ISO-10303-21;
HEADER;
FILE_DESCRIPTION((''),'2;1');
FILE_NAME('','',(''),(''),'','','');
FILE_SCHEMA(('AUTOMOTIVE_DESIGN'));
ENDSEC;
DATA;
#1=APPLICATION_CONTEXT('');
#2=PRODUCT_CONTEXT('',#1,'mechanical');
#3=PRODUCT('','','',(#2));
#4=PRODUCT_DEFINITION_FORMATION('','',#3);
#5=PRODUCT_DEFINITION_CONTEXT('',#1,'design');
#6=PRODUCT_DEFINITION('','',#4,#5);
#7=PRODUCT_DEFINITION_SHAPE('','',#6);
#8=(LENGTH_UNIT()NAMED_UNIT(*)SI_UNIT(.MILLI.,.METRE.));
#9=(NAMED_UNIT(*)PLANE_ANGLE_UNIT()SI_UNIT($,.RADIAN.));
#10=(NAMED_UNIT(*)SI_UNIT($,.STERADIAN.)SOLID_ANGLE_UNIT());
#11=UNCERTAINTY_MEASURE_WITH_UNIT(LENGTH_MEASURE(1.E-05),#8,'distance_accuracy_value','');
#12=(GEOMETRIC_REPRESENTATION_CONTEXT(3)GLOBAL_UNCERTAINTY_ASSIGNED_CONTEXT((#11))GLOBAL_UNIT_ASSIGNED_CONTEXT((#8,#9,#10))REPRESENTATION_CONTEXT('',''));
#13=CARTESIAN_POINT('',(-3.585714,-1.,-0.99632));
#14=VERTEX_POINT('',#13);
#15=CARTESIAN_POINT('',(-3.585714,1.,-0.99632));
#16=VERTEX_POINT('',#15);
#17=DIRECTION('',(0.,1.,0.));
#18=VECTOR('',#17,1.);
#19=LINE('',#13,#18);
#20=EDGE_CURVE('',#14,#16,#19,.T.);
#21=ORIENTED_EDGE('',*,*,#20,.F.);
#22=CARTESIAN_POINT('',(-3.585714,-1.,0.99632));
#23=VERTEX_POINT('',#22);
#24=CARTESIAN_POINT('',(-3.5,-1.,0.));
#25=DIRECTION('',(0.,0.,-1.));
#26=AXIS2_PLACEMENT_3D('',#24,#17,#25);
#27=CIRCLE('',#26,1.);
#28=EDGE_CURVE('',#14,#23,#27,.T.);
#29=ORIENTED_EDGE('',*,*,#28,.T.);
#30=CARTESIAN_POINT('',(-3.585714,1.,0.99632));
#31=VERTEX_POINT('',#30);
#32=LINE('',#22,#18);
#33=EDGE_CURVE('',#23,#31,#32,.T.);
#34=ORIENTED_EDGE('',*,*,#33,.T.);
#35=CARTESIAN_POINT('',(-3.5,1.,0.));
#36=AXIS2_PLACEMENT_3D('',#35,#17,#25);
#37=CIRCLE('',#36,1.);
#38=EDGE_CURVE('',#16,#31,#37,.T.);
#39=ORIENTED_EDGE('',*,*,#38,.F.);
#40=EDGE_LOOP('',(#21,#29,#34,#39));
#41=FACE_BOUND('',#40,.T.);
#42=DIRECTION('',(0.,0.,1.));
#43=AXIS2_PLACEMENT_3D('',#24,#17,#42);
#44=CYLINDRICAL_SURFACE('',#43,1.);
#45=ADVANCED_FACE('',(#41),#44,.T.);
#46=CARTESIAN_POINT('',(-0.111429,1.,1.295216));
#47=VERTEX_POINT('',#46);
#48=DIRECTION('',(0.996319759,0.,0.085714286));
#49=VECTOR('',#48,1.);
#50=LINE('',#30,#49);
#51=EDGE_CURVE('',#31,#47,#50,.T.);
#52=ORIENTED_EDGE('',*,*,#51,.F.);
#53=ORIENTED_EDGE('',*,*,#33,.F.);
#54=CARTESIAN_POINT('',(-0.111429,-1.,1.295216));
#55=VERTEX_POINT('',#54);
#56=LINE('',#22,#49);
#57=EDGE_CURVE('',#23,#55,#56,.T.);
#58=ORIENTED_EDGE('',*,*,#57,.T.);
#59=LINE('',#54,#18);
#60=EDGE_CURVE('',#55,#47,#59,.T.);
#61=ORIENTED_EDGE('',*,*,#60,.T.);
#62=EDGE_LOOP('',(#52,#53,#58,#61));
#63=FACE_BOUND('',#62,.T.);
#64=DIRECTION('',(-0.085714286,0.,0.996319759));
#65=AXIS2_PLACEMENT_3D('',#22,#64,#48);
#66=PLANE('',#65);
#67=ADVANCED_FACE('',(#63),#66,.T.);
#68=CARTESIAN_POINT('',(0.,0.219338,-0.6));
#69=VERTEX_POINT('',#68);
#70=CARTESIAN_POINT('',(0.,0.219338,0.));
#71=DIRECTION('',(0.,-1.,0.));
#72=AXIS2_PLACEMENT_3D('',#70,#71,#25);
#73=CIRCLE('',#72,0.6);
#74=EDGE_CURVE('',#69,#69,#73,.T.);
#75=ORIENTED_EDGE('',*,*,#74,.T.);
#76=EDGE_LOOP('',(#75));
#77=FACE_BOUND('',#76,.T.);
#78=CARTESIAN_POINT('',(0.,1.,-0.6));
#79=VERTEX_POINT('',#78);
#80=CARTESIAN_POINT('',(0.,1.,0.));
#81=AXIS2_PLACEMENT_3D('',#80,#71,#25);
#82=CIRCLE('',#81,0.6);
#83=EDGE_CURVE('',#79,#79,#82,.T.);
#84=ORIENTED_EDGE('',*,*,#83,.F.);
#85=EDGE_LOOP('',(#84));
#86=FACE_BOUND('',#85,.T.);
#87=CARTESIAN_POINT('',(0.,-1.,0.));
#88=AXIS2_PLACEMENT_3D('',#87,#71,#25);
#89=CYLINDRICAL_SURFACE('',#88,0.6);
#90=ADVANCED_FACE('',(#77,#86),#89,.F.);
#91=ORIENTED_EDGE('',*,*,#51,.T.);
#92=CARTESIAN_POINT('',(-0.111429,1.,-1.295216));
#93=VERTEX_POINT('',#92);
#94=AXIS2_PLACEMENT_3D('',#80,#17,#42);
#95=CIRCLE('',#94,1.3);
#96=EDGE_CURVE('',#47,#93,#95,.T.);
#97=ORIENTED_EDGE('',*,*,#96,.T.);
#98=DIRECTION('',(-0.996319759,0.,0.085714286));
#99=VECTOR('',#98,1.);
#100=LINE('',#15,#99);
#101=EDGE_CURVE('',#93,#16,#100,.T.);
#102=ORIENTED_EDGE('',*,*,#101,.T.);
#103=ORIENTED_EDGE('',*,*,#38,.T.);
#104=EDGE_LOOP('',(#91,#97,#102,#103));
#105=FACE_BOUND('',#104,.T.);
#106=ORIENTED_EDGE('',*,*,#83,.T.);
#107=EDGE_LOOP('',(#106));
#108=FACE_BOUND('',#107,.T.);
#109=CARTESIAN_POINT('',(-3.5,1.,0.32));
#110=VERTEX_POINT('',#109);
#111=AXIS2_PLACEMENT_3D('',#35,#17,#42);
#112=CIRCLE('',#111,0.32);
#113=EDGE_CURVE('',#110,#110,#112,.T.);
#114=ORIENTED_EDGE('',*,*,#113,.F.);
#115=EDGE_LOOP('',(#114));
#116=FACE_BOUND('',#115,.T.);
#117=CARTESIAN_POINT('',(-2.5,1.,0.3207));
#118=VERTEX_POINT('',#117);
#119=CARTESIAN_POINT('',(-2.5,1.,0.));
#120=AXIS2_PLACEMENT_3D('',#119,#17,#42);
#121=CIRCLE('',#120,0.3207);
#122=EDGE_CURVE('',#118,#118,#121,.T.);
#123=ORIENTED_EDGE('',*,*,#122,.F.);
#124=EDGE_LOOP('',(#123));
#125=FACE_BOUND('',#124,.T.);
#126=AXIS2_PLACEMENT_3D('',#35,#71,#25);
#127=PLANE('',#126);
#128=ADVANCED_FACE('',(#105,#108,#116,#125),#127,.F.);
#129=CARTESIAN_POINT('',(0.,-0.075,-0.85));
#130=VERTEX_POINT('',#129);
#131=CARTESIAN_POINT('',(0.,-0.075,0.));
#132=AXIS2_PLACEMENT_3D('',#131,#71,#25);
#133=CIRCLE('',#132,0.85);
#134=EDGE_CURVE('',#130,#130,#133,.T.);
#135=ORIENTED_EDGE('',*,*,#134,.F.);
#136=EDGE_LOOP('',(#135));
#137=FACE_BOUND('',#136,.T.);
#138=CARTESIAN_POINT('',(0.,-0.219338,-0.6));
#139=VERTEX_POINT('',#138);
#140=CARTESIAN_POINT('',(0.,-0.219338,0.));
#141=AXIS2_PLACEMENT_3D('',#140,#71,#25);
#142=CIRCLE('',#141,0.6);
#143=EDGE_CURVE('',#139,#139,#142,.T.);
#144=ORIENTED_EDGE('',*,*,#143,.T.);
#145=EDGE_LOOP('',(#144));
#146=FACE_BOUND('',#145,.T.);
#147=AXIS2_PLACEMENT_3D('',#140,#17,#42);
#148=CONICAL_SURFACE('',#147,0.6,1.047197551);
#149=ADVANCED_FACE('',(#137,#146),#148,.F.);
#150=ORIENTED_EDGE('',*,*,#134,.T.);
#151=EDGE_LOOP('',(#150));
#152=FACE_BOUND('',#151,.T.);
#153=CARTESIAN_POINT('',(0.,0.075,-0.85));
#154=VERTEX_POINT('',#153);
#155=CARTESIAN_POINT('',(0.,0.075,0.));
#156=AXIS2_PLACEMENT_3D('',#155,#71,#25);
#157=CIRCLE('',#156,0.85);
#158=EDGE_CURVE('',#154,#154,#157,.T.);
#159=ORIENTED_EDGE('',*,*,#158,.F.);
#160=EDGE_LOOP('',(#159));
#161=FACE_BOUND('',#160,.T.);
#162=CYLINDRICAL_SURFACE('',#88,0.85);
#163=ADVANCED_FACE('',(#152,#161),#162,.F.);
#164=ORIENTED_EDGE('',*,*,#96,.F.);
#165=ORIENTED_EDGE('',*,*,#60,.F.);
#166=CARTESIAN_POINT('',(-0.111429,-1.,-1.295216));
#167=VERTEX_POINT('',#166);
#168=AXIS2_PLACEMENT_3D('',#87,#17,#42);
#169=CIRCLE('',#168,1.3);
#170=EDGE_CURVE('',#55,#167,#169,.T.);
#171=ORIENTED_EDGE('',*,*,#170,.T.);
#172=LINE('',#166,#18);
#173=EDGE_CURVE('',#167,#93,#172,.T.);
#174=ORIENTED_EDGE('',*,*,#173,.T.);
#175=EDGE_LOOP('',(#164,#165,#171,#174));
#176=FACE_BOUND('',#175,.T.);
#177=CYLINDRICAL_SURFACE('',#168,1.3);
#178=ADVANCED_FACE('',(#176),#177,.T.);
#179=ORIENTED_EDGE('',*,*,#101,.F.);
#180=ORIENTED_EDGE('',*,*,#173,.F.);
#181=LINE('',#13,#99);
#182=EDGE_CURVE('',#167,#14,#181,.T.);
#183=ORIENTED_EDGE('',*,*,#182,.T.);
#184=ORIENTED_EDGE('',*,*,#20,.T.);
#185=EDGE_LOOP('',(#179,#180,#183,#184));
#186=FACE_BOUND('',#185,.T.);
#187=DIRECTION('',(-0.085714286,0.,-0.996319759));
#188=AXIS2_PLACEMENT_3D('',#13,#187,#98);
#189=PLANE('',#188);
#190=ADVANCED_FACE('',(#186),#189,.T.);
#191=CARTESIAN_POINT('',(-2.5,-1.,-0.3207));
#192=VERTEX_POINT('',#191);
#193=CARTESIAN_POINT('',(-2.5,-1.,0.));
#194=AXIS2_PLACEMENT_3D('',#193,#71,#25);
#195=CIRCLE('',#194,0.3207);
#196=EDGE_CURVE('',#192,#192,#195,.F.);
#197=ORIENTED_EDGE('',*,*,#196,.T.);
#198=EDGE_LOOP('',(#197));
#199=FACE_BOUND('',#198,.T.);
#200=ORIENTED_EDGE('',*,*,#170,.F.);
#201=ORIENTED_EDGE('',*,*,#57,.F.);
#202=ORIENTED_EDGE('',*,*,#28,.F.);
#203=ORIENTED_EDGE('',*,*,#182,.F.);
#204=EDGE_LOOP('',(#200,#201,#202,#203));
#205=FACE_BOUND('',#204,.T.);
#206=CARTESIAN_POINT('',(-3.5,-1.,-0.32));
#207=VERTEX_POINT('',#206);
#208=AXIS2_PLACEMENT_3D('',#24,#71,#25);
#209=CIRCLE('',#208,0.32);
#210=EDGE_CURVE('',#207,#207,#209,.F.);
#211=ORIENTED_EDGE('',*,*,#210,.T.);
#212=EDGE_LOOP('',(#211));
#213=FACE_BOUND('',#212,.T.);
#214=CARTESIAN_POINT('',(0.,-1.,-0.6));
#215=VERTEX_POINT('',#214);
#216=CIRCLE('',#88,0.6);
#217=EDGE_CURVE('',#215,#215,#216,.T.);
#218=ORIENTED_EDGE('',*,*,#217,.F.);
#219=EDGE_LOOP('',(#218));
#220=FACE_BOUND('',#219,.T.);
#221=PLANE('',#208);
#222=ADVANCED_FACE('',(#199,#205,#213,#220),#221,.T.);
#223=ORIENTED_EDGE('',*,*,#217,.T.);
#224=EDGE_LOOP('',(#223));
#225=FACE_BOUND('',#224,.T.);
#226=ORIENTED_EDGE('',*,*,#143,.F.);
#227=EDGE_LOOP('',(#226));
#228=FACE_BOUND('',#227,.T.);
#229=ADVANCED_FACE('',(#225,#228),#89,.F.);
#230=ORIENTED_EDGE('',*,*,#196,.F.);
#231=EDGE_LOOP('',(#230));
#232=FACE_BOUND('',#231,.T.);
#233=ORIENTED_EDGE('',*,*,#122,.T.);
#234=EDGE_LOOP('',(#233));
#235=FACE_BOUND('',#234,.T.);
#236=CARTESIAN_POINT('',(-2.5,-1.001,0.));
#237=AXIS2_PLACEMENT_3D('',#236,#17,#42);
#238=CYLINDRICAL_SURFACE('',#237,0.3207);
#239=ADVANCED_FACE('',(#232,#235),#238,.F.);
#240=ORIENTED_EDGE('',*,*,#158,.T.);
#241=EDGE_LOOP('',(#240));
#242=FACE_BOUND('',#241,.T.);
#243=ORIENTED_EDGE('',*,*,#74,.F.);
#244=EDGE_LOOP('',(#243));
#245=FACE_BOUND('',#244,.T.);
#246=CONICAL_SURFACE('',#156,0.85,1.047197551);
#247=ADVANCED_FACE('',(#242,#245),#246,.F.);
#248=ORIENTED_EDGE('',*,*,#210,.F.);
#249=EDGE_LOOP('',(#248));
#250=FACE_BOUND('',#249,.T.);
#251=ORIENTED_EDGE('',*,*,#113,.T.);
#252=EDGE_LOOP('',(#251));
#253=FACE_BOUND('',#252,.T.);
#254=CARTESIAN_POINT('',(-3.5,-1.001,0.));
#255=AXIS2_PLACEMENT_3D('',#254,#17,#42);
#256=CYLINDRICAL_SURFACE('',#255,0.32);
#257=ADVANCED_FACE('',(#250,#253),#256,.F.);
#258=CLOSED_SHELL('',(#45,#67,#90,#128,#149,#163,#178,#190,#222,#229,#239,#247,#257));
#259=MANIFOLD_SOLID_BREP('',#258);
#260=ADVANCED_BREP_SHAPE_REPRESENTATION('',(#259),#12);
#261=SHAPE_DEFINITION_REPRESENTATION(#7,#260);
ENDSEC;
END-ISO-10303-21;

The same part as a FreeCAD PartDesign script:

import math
import FreeCAD as App
import Part
import Sketcher
from FreeCAD import Vector
Q = App.Units.Quantity


def add_polygon(sketch, points):
    """Adds a closed chain of lines whose ends are joined by coincident constraints."""
    first, n = sketch.GeometryCount, len(points)
    for a, b in zip(points, points[1:] + points[:1]):
        sketch.addGeometry(Part.LineSegment(App.Vector(*a, 0), App.Vector(*b, 0)), False)
    for i in range(n):
        sketch.addConstraint(Sketcher.Constraint("Coincident", first + i, 2, first + (i + 1) % n, 1))

doc = App.newDocument("Part")
body = doc.addObject("PartDesign::Body", "Body")

# Sketch on XZ plane
sketch1 = doc.addObject("Sketcher::SketchObject", "Sketch")
body.addObject(sketch1)
sketch1.AttachmentSupport = (doc.XZ_Plane, [""])
sketch1.MapMode = "FlatFace"
sketch1.addGeometry([
    Part.LineSegment(Vector(-0.1, -1.3, 0), Vector(-3.6, -1, 0)),
    Part.ArcOfCircle(Part.Circle(Vector(-3.5, 0, 0), Vector(0, 0, 1), 1), math.radians(95), math.radians(265)),
    Part.LineSegment(Vector(-3.6, 1, 0), Vector(-0.1, 1.3, 0)),
    Part.ArcOfCircle(Part.Circle(Vector(0, 0, 0), Vector(0, 0, 1), 1.3), math.radians(-95), math.radians(95)),
], False)
sketch1.addConstraint([
    Sketcher.Constraint("Tangent", 0, 2, 1, 2),
    Sketcher.Constraint("Tangent", 1, 1, 2, 1),
    Sketcher.Constraint("Tangent", 2, 2, 3, 2),
    Sketcher.Constraint("Tangent", 3, 1, 0, 1),
    Sketcher.Constraint("Coincident", 3, 3, -1, 1),
    Sketcher.Constraint("PointOnObject", 1, 3, -1),
    Sketcher.Constraint("Radius", 1, Q("1 mm")),
    Sketcher.Constraint("Radius", 3, Q("1.3 mm")),
    Sketcher.Constraint("DistanceX", 1, 3, -1, 1, Q("3.5 mm")),
])
pad1 = doc.addObject("PartDesign::Pad", "Pad")
body.addObject(pad1)
pad1.Profile = sketch1
pad1.Type = "TwoLengths"
pad1.Length = 1
pad1.Length2 = 1
pad1.Reversed = True

# Sketch on XY plane
sketch2 = doc.addObject("Sketcher::SketchObject", "Sketch001")
body.addObject(sketch2)
sketch2.AttachmentSupport = (doc.XY_Plane, [""])
sketch2.MapMode = "FlatFace"
add_polygon(sketch2, [(0.85, 0.07), (0.6, 0.22), (0.6, 1), (0, 1), (0, -1), (0.6, -1), (0.6, -0.22), (0.85, -0.07)])  # lines 0-7
sketch2.addConstraint([
    Sketcher.Constraint("Vertical", 1),
    Sketcher.Constraint("Horizontal", 2),
    Sketcher.Constraint("Vertical", 3),
    Sketcher.Constraint("Horizontal", 4),
    Sketcher.Constraint("Vertical", 5),
    Sketcher.Constraint("Vertical", 7),
    Sketcher.Constraint("Symmetric", 2, 2, 3, 2, -1, 1),
    Sketcher.Constraint("Symmetric", 0, 2, 5, 2, -1),
    Sketcher.Constraint("Equal", 0, 6),
    Sketcher.Constraint("DistanceY", 3, 2, 3, 1, Q("2 mm")),
    Sketcher.Constraint("Angle", 0, Q("150 deg")),
    Sketcher.Constraint("DistanceX", 2, 2, 2, 1, Q("0.6 mm")),
    Sketcher.Constraint("DistanceY", 7, 1, 7, 2, Q("0.15 mm")),
    Sketcher.Constraint("DistanceX", -1, 1, 6, 2, Q("0.85 mm")),
])
groove = doc.addObject("PartDesign::Groove", "Groove")
body.addObject(groove)
groove.Profile = sketch2
groove.ReferenceAxis = (sketch2, ["V_Axis"])
groove.Angle = 360

# Sketch on XZ plane
sketch3 = doc.addObject("Sketcher::SketchObject", "Sketch002")
body.addObject(sketch3)
sketch3.AttachmentSupport = (doc.XZ_Plane, [""])
sketch3.MapMode = "FlatFace"
sketch3.AttachmentOffset = App.Placement(Vector(0, 0, -1), App.Rotation())
sketch3.addGeometry(Part.Circle(Vector(-2.5, 0, 0), Vector(0, 0, 1), 0.32), False)
sketch3.addConstraint([
    Sketcher.Constraint("PointOnObject", 0, 3, -1),
    Sketcher.Constraint("Diameter", 0, Q("0.6414 mm")),
    Sketcher.Constraint("DistanceX", 0, 3, -1, 1, Q("2.5 mm")),
])
pocket1 = doc.addObject("PartDesign::Pocket", "Pocket")
body.addObject(pocket1)
pocket1.Profile = sketch3
pocket1.Type = "UpToFirst"
pocket1.Reversed = True

# Sketch on XZ plane
sketch4 = doc.addObject("Sketcher::SketchObject", "Sketch003")
body.addObject(sketch4)
sketch4.AttachmentSupport = (doc.XZ_Plane, [""])
sketch4.MapMode = "FlatFace"
sketch4.AttachmentOffset = App.Placement(Vector(0, 0, -1), App.Rotation())
sketch4.addGeometry(Part.Circle(Vector(-3.5, 0, 0), Vector(0, 0, 1), 0.32), False)
sketch4.addConstraint([
    Sketcher.Constraint("PointOnObject", 0, 3, -1),
    Sketcher.Constraint("Diameter", 0, Q("0.64 mm")),
    Sketcher.Constraint("DistanceX", 0, 3, -1, 1, Q("3.5 mm")),
])
pocket2 = doc.addObject("PartDesign::Pocket", "Pocket001")
body.addObject(pocket2)
pocket2.Profile = sketch4
pocket2.Type = "UpToFirst"
pocket2.Reversed = True

doc.recompute()
